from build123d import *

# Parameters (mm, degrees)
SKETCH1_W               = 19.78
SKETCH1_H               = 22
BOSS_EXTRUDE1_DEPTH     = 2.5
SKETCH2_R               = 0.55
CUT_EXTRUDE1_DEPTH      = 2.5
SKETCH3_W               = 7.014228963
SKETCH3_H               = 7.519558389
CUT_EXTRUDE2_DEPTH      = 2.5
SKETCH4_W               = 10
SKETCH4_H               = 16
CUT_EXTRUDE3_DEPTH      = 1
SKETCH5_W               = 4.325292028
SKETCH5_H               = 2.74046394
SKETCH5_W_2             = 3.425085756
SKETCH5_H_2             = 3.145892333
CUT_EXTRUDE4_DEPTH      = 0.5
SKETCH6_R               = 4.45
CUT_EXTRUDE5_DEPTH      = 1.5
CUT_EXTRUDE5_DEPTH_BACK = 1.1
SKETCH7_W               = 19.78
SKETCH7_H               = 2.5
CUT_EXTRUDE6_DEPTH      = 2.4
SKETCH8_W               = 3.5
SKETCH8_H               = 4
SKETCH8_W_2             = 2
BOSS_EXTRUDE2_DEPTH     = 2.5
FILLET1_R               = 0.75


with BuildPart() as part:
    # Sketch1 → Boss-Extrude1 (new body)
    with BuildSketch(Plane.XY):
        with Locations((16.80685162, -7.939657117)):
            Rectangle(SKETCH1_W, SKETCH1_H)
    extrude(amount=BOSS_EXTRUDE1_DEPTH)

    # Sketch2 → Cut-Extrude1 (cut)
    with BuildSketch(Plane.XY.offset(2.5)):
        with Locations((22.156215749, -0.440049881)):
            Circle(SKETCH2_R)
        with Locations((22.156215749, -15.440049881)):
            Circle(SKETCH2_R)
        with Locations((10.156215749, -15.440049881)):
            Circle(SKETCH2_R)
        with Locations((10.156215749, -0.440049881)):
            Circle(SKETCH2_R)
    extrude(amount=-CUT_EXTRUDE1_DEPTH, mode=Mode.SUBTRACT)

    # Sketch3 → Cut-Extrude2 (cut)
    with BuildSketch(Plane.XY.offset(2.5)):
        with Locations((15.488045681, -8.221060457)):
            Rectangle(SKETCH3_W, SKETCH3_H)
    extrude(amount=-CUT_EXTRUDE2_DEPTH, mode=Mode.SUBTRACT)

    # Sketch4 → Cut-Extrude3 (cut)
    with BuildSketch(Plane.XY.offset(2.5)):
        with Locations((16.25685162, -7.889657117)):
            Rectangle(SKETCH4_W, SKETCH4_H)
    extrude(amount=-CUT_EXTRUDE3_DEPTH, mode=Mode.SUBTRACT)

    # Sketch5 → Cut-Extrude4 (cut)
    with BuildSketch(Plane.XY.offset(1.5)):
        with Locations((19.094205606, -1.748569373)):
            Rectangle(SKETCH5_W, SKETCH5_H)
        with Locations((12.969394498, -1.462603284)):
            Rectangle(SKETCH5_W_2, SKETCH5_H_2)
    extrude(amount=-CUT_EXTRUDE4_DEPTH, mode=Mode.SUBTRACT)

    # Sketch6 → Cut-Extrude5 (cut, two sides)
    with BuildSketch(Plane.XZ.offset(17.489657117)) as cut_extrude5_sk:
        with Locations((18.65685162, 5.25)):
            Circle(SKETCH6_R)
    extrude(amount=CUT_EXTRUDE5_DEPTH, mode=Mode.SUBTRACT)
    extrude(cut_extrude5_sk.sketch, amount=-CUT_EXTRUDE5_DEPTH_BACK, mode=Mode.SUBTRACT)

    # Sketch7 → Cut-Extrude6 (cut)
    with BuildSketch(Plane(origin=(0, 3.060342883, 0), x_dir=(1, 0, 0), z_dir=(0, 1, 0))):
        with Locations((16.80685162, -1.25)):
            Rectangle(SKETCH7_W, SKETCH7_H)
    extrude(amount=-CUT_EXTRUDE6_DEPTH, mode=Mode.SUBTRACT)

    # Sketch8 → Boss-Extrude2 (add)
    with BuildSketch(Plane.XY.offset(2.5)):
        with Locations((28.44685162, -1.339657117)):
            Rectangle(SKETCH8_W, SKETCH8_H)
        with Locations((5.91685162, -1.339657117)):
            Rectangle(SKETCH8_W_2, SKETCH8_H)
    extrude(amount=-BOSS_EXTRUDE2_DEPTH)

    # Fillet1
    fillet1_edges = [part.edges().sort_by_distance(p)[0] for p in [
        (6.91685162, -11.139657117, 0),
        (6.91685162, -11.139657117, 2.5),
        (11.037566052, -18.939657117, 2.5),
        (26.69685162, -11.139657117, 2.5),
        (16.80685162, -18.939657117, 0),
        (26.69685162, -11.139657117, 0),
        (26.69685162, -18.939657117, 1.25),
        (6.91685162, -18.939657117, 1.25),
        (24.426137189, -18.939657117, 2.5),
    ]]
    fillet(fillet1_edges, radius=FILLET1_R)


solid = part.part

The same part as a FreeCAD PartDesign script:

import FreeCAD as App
import Part
import Sketcher
from FreeCAD import Vector
Q = App.Units.Quantity


def edges_at(feature, points):
    """Names of the edges that pass closest to the given points."""
    edges = feature.Shape.Edges
    near = lambda p: min(range(len(edges)), key=lambda i: edges[i].distToShape(Part.Vertex(*p))[0])
    return sorted({f"Edge{near(p) + 1}" for p in points})

doc = App.newDocument("Part")
body = doc.addObject("PartDesign::Body", "Body")

sketch1 = doc.addObject("Sketcher::SketchObject", "Sketch")
body.addObject(sketch1)
sketch1.AttachmentSupport = (doc.XY_Plane, [""])
sketch1.MapMode = "FlatFace"
sketch1.addGeometry([
    Part.LineSegment(Vector(6.916852, 3.060343, 0), Vector(6.916852, -18.939657, 0)),
    Part.LineSegment(Vector(6.916852, -18.939657, 0), Vector(26.696852, -18.939657, 0)),
    Part.LineSegment(Vector(26.696852, -18.939657, 0), Vector(26.696852, 3.060343, 0)),
    Part.LineSegment(Vector(26.696852, 3.060343, 0), Vector(6.916852, 3.060343, 0)),
], False)
sketch1.addConstraint([
    Sketcher.Constraint("Coincident", 0, 2, 1, 1),
    Sketcher.Constraint("Coincident", 1, 2, 2, 1),
    Sketcher.Constraint("Coincident", 2, 2, 3, 1),
    Sketcher.Constraint("Coincident", 3, 2, 0, 1),
    Sketcher.Constraint("Vertical", 0),
    Sketcher.Constraint("Horizontal", 1),
    Sketcher.Constraint("Vertical", 2),
    Sketcher.Constraint("Horizontal", 3),
    Sketcher.Constraint("DistanceY", 0, 2, 0, 1, Q("22 mm")),
    Sketcher.Constraint("DistanceX", 1, 1, 1, 2, Q("19.78 mm")),
    Sketcher.Constraint("DistanceX", -1, 1, 0, 2, Q("6.916852 mm")),
    Sketcher.Constraint("DistanceY", 0, 2, -1, 1, Q("18.939657 mm")),
])
pad1 = doc.addObject("PartDesign::Pad", "Pad")
body.addObject(pad1)
pad1.Profile = sketch1
pad1.Length = 2.5

sketch2 = doc.addObject("Sketcher::SketchObject", "Sketch001")
body.addObject(sketch2)
sketch2.AttachmentSupport = (doc.XY_Plane, [""])
sketch2.MapMode = "FlatFace"
sketch2.AttachmentOffset = App.Placement(Vector(0, 0, 2.5), App.Rotation())
sketch2.addGeometry([
    Part.Circle(Vector(22.156216, -0.44005, 0), Vector(0, 0, 1), 0.55),
    Part.Circle(Vector(22.156216, -15.44005, 0), Vector(0, 0, 1), 0.55),
    Part.Circle(Vector(10.156216, -15.44005, 0), Vector(0, 0, 1), 0.55),
    Part.Circle(Vector(10.156216, -0.44005, 0), Vector(0, 0, 1), 0.55),
], False)
sketch2.addConstraint([
    Sketcher.Constraint("Equal", 0, 1),
    Sketcher.Constraint("Equal", 1, 2),
    Sketcher.Constraint("Equal", 2, 3),
    Sketcher.Constraint("Horizontal", 1, 3, 2, 3),
    Sketcher.Constraint("Horizontal", 0, 3, 3, 3),
    Sketcher.Constraint("Vertical", 0, 3, 1, 3),
    Sketcher.Constraint("Vertical", 2, 3, 3, 3),
    Sketcher.Constraint("Diameter", 0, Q("1.1 mm")),
    Sketcher.Constraint("DistanceY", 1, 3, 0, 3, Q("15 mm")),
    Sketcher.Constraint("DistanceX", 2, 3, 1, 3, Q("12 mm")),
    Sketcher.Constraint("DistanceY", 0, 3, -1, 1, Q("0.44005 mm")),
    Sketcher.Constraint("DistanceX", -1, 1, 0, 3, Q("22.156216 mm")),
])
pocket1 = doc.addObject("PartDesign::Pocket", "Pocket")
body.addObject(pocket1)
pocket1.Profile = sketch2
pocket1.Length = 2.5

sketch3 = doc.addObject("Sketcher::SketchObject", "Sketch002")
body.addObject(sketch3)
sketch3.AttachmentSupport = (doc.XY_Plane, [""])
sketch3.MapMode = "FlatFace"
sketch3.AttachmentOffset = App.Placement(Vector(0, 0, 2.5), App.Rotation())
sketch3.addGeometry([
    Part.LineSegment(Vector(11.980931, -4.461281, 0), Vector(11.980931, -11.98084, 0)),
    Part.LineSegment(Vector(11.980931, -11.98084, 0), Vector(18.99516, -11.98084, 0)),
    Part.LineSegment(Vector(18.99516, -11.98084, 0), Vector(18.99516, -4.461281, 0)),
    Part.LineSegment(Vector(18.99516, -4.461281, 0), Vector(11.980931, -4.461281, 0)),
], False)
sketch3.addConstraint([
    Sketcher.Constraint("Coincident", 0, 2, 1, 1),
    Sketcher.Constraint("Coincident", 1, 2, 2, 1),
    Sketcher.Constraint("Coincident", 2, 2, 3, 1),
    Sketcher.Constraint("Coincident", 3, 2, 0, 1),
    Sketcher.Constraint("Vertical", 0),
    Sketcher.Constraint("Horizontal", 1),
    Sketcher.Constraint("Vertical", 2),
    Sketcher.Constraint("Horizontal", 3),
    Sketcher.Constraint("DistanceX", 1, 1, 1, 2, Q("7.014229 mm")),
    Sketcher.Constraint("DistanceY", 0, 2, 0, 1, Q("7.519558 mm")),
    Sketcher.Constraint("DistanceX", -1, 1, 0, 2, Q("11.980931 mm")),
    Sketcher.Constraint("DistanceY", 0, 2, -1, 1, Q("11.98084 mm")),
])
pocket2 = doc.addObject("PartDesign::Pocket", "Pocket001")
body.addObject(pocket2)
pocket2.Profile = sketch3
pocket2.Length = 2.5

sketch4 = doc.addObject("Sketcher::SketchObject", "Sketch003")
body.addObject(sketch4)
sketch4.AttachmentSupport = (doc.XY_Plane, [""])
sketch4.MapMode = "FlatFace"
sketch4.AttachmentOffset = App.Placement(Vector(0, 0, 2.5), App.Rotation())
sketch4.addGeometry([
    Part.LineSegment(Vector(11.256852, 0.110343, 0), Vector(11.256852, -15.889657, 0)),
    Part.LineSegment(Vector(11.256852, -15.889657, 0), Vector(21.256852, -15.889657, 0)),
    Part.LineSegment(Vector(21.256852, -15.889657, 0), Vector(21.256852, 0.110343, 0)),
    Part.LineSegment(Vector(21.256852, 0.110343, 0), Vector(11.256852, 0.110343, 0)),
], False)
sketch4.addConstraint([
    Sketcher.Constraint("Coincident", 0, 2, 1, 1),
    Sketcher.Constraint("Coincident", 1, 2, 2, 1),
    Sketcher.Constraint("Coincident", 2, 2, 3, 1),
    Sketcher.Constraint("Coincident", 3, 2, 0, 1),
    Sketcher.Constraint("Vertical", 0),
    Sketcher.Constraint("Horizontal", 1),
    Sketcher.Constraint("Vertical", 2),
    Sketcher.Constraint("Horizontal", 3),
    Sketcher.Constraint("DistanceX", 1, 1, 1, 2, Q("10 mm")),
    Sketcher.Constraint("DistanceY", 0, 2, 0, 1, Q("16 mm")),
    Sketcher.Constraint("DistanceX", -1, 1, 0, 2, Q("11.256852 mm")),
    Sketcher.Constraint("DistanceY", 0, 2, -1, 1, Q("15.889657 mm")),
])
pocket3 = doc.addObject("PartDesign::Pocket", "Pocket002")
body.addObject(pocket3)
pocket3.Profile = sketch4
pocket3.Length = 1

sketch5 = doc.addObject("Sketcher::SketchObject", "Sketch004")
body.addObject(sketch5)
sketch5.AttachmentSupport = (doc.XY_Plane, [""])
sketch5.MapMode = "FlatFace"
sketch5.AttachmentOffset = App.Placement(Vector(0, 0, 1.5), App.Rotation())
sketch5.addGeometry([
    Part.LineSegment(Vector(16.93156, -0.378337, 0), Vector(16.93156, -3.118801, 0)),
    Part.LineSegment(Vector(16.93156, -3.118801, 0), Vector(21.256852, -3.118801, 0)),
    Part.LineSegment(Vector(21.256852, -3.118801, 0), Vector(21.256852, -0.378337, 0)),
    Part.LineSegment(Vector(21.256852, -0.378337, 0), Vector(16.93156, -0.378337, 0)),
    Part.LineSegment(Vector(11.256852, 0.110343, 0), Vector(11.256852, -3.035549, 0)),
    Part.LineSegment(Vector(11.256852, -3.035549, 0), Vector(14.681937, -3.035549, 0)),
    Part.LineSegment(Vector(14.681937, -3.035549, 0), Vector(14.681937, 0.110343, 0)),
    Part.LineSegment(Vector(14.681937, 0.110343, 0), Vector(11.256852, 0.110343, 0)),
], False)
sketch5.addConstraint([
    Sketcher.Constraint("Coincident", 0, 2, 1, 1),
    Sketcher.Constraint("Coincident", 1, 2, 2, 1),
    Sketcher.Constraint("Coincident", 2, 2, 3, 1),
    Sketcher.Constraint("Coincident", 3, 2, 0, 1),
    Sketcher.Constraint("Coincident", 4, 2, 5, 1),
    Sketcher.Constraint("Coincident", 5, 2, 6, 1),
    Sketcher.Constraint("Coincident", 6, 2, 7, 1),
    Sketcher.Constraint("Coincident", 7, 2, 4, 1),
    Sketcher.Constraint("Vertical", 0),
    Sketcher.Constraint("Horizontal", 1),
    Sketcher.Constraint("Vertical", 2),
    Sketcher.Constraint("Horizontal", 3),
    Sketcher.Constraint("Vertical", 4),
    Sketcher.Constraint("Horizontal", 5),
    Sketcher.Constraint("Vertical", 6),
    Sketcher.Constraint("Horizontal", 7),
    Sketcher.Constraint("DistanceX", 4, 2, 1, 2, Q("10 mm")),
    Sketcher.Constraint("DistanceY", 0, 2, -1, 1, Q("3.118801 mm")),
    Sketcher.Constraint("DistanceX", 1, 1, 1, 2, Q("4.325292 mm")),
    Sketcher.Constraint("DistanceX", 5, 1, 5, 2, Q("3.425086 mm")),
    Sketcher.Constraint("DistanceY", 0, 2, 0, 1, Q("2.740464 mm")),
    Sketcher.Constraint("DistanceY", 4, 2, 4, 1, Q("3.145892 mm")),
    Sketcher.Constraint("DistanceX", -1, 1, 0, 2, Q("16.93156 mm")),
    Sketcher.Constraint("DistanceY", 4, 2, -1, 1, Q("3.035549 mm")),
])
pocket4 = doc.addObject("PartDesign::Pocket", "Pocket003")
body.addObject(pocket4)
pocket4.Profile = sketch5
pocket4.Length = 0.5

sketch6 = doc.addObject("Sketcher::SketchObject", "Sketch005")
body.addObject(sketch6)
sketch6.AttachmentSupport = (doc.XZ_Plane, [""])
sketch6.MapMode = "FlatFace"
sketch6.AttachmentOffset = App.Placement(Vector(0, 0, 17.489657), App.Rotation())
sketch6.addGeometry(Part.Circle(Vector(18.656852, 5.25, 0), Vector(0, 0, 1), 4.45), False)
sketch6.addConstraint([
    Sketcher.Constraint("Diameter", 0, Q("8.9 mm")),
    Sketcher.Constraint("DistanceY", -1, 1, 0, 3, Q("5.25 mm")),
    Sketcher.Constraint("DistanceX", -1, 1, 0, 3, Q("18.656852 mm")),
])
pocket5 = doc.addObject("PartDesign::Pocket", "Pocket004")
body.addObject(pocket5)
pocket5.Profile = sketch6
pocket5.Type = "TwoLengths"
pocket5.Length = 1.5
pocket5.Length2 = 1.1
pocket5.Reversed = True

sketch7 = doc.addObject("Sketcher::SketchObject", "Sketch006")
body.addObject(sketch7)
sketch7.AttachmentSupport = (doc.XZ_Plane, [""])
sketch7.MapMode = "FlatFace"
sketch7.AttachmentOffset = App.Placement(Vector(0, 0, -3.060343), App.Rotation())
sketch7.addGeometry([
    Part.LineSegment(Vector(6.916852, 0, 0), Vector(6.916852, 2.5, 0)),
    Part.LineSegment(Vector(6.916852, 2.5, 0), Vector(26.696852, 2.5, 0)),
    Part.LineSegment(Vector(26.696852, 2.5, 0), Vector(26.696852, 0, 0)),
    Part.LineSegment(Vector(26.696852, 0, 0), Vector(6.916852, 0, 0)),
], False)
sketch7.addConstraint([
    Sketcher.Constraint("Coincident", 0, 2, 1, 1),
    Sketcher.Constraint("Coincident", 1, 2, 2, 1),
    Sketcher.Constraint("Coincident", 2, 2, 3, 1),
    Sketcher.Constraint("Coincident", 3, 2, 0, 1),
    Sketcher.Constraint("Vertical", 0),
    Sketcher.Constraint("Horizontal", 1),
    Sketcher.Constraint("Vertical", 2),
    Sketcher.Constraint("Horizontal", 3),
    Sketcher.Constraint("PointOnObject", 2, 2, -1),
    Sketcher.Constraint("DistanceY", 0, 1, 0, 2, Q("2.5 mm")),
    Sketcher.Constraint("DistanceX", 1, 1, 1, 2, Q("19.78 mm")),
    Sketcher.Constraint("DistanceX", -1, 1, 0, 2, Q("6.916852 mm")),
])
pocket6 = doc.addObject("PartDesign::Pocket", "Pocket005")
body.addObject(pocket6)
pocket6.Profile = sketch7
pocket6.Length = 2.4
pocket6.Reversed = True

sketch8 = doc.addObject("Sketcher::SketchObject", "Sketch007")
body.addObject(sketch8)
sketch8.AttachmentSupport = (doc.XY_Plane, [""])
sketch8.MapMode = "FlatFace"
sketch8.AttachmentOffset = App.Placement(Vector(0, 0, 2.5), App.Rotation())
sketch8.addGeometry([
    Part.LineSegment(Vector(26.696852, 0.660343, 0), Vector(26.696852, -3.339657, 0)),
    Part.LineSegment(Vector(26.696852, -3.339657, 0), Vector(30.196852, -3.339657, 0)),
    Part.LineSegment(Vector(30.196852, -3.339657, 0), Vector(30.196852, 0.660343, 0)),
    Part.LineSegment(Vector(30.196852, 0.660343, 0), Vector(26.696852, 0.660343, 0)),
    Part.LineSegment(Vector(4.916852, 0.660343, 0), Vector(4.916852, -3.339657, 0)),
    Part.LineSegment(Vector(4.916852, -3.339657, 0), Vector(6.916852, -3.339657, 0)),
    Part.LineSegment(Vector(6.916852, -3.339657, 0), Vector(6.916852, 0.660343, 0)),
    Part.LineSegment(Vector(6.916852, 0.660343, 0), Vector(4.916852, 0.660343, 0)),
], False)
sketch8.addConstraint([
    Sketcher.Constraint("Coincident", 0, 2, 1, 1),
    Sketcher.Constraint("Coincident", 1, 2, 2, 1),
    Sketcher.Constraint("Coincident", 2, 2, 3, 1),
    Sketcher.Constraint("Coincident", 3, 2, 0, 1),
    Sketcher.Constraint("Coincident", 4, 2, 5, 1),
    Sketcher.Constraint("Coincident", 5, 2, 6, 1),
    Sketcher.Constraint("Coincident", 6, 2, 7, 1),
    Sketcher.Constraint("Coincident", 7, 2, 4, 1),
    Sketcher.Constraint("Vertical", 0),
    Sketcher.Constraint("Horizontal", 1),
    Sketcher.Constraint("Vertical", 2),
    Sketcher.Constraint("Horizontal", 3),
    Sketcher.Constraint("Vertical", 4),
    Sketcher.Constraint("Horizontal", 5),
    Sketcher.Constraint("Vertical", 6),
    Sketcher.Constraint("Horizontal", 7),
    Sketcher.Constraint("Horizontal", 1, 2, 4, 2),
    Sketcher.Constraint("Horizontal", 3, 2, 6, 2),
    Sketcher.Constraint("DistanceX", 5, 1, 5, 2, Q("2 mm")),
    Sketcher.Constraint("DistanceY", 0, 2, 0, 1, Q("4 mm")),
    Sketcher.Constraint("DistanceX", 1, 1, 1, 2, Q("3.5 mm")),
    Sketcher.Constraint("DistanceX", 4, 2, 0, 2, Q("21.78 mm")),
    Sketcher.Constraint("DistanceX", -1, 1, 0, 2, Q("26.696852 mm")),
    Sketcher.Constraint("DistanceY", 0, 2, -1, 1, Q("3.339657 mm")),
])
pad2 = doc.addObject("PartDesign::Pad", "Pad001")
body.addObject(pad2)
pad2.Profile = sketch8
pad2.Length = 2.5
pad2.Reversed = True
doc.recompute()

fillet = doc.addObject("PartDesign::Fillet", "Fillet")
body.addObject(fillet)
fillet.Base = (pad2, edges_at(pad2, [
    (6.917, -11.14, 0),
    (6.917, -11.14, 2.5),
    (11.038, -18.94, 2.5),
    (26.697, -11.14, 2.5),
    (16.807, -18.94, 0),
    (26.697, -11.14, 0),
    (26.697, -18.94, 1.25),
    (6.917, -18.94, 1.25),
    (24.426, -18.94, 2.5),
]))
fillet.Radius = 0.75

doc.recompute()
